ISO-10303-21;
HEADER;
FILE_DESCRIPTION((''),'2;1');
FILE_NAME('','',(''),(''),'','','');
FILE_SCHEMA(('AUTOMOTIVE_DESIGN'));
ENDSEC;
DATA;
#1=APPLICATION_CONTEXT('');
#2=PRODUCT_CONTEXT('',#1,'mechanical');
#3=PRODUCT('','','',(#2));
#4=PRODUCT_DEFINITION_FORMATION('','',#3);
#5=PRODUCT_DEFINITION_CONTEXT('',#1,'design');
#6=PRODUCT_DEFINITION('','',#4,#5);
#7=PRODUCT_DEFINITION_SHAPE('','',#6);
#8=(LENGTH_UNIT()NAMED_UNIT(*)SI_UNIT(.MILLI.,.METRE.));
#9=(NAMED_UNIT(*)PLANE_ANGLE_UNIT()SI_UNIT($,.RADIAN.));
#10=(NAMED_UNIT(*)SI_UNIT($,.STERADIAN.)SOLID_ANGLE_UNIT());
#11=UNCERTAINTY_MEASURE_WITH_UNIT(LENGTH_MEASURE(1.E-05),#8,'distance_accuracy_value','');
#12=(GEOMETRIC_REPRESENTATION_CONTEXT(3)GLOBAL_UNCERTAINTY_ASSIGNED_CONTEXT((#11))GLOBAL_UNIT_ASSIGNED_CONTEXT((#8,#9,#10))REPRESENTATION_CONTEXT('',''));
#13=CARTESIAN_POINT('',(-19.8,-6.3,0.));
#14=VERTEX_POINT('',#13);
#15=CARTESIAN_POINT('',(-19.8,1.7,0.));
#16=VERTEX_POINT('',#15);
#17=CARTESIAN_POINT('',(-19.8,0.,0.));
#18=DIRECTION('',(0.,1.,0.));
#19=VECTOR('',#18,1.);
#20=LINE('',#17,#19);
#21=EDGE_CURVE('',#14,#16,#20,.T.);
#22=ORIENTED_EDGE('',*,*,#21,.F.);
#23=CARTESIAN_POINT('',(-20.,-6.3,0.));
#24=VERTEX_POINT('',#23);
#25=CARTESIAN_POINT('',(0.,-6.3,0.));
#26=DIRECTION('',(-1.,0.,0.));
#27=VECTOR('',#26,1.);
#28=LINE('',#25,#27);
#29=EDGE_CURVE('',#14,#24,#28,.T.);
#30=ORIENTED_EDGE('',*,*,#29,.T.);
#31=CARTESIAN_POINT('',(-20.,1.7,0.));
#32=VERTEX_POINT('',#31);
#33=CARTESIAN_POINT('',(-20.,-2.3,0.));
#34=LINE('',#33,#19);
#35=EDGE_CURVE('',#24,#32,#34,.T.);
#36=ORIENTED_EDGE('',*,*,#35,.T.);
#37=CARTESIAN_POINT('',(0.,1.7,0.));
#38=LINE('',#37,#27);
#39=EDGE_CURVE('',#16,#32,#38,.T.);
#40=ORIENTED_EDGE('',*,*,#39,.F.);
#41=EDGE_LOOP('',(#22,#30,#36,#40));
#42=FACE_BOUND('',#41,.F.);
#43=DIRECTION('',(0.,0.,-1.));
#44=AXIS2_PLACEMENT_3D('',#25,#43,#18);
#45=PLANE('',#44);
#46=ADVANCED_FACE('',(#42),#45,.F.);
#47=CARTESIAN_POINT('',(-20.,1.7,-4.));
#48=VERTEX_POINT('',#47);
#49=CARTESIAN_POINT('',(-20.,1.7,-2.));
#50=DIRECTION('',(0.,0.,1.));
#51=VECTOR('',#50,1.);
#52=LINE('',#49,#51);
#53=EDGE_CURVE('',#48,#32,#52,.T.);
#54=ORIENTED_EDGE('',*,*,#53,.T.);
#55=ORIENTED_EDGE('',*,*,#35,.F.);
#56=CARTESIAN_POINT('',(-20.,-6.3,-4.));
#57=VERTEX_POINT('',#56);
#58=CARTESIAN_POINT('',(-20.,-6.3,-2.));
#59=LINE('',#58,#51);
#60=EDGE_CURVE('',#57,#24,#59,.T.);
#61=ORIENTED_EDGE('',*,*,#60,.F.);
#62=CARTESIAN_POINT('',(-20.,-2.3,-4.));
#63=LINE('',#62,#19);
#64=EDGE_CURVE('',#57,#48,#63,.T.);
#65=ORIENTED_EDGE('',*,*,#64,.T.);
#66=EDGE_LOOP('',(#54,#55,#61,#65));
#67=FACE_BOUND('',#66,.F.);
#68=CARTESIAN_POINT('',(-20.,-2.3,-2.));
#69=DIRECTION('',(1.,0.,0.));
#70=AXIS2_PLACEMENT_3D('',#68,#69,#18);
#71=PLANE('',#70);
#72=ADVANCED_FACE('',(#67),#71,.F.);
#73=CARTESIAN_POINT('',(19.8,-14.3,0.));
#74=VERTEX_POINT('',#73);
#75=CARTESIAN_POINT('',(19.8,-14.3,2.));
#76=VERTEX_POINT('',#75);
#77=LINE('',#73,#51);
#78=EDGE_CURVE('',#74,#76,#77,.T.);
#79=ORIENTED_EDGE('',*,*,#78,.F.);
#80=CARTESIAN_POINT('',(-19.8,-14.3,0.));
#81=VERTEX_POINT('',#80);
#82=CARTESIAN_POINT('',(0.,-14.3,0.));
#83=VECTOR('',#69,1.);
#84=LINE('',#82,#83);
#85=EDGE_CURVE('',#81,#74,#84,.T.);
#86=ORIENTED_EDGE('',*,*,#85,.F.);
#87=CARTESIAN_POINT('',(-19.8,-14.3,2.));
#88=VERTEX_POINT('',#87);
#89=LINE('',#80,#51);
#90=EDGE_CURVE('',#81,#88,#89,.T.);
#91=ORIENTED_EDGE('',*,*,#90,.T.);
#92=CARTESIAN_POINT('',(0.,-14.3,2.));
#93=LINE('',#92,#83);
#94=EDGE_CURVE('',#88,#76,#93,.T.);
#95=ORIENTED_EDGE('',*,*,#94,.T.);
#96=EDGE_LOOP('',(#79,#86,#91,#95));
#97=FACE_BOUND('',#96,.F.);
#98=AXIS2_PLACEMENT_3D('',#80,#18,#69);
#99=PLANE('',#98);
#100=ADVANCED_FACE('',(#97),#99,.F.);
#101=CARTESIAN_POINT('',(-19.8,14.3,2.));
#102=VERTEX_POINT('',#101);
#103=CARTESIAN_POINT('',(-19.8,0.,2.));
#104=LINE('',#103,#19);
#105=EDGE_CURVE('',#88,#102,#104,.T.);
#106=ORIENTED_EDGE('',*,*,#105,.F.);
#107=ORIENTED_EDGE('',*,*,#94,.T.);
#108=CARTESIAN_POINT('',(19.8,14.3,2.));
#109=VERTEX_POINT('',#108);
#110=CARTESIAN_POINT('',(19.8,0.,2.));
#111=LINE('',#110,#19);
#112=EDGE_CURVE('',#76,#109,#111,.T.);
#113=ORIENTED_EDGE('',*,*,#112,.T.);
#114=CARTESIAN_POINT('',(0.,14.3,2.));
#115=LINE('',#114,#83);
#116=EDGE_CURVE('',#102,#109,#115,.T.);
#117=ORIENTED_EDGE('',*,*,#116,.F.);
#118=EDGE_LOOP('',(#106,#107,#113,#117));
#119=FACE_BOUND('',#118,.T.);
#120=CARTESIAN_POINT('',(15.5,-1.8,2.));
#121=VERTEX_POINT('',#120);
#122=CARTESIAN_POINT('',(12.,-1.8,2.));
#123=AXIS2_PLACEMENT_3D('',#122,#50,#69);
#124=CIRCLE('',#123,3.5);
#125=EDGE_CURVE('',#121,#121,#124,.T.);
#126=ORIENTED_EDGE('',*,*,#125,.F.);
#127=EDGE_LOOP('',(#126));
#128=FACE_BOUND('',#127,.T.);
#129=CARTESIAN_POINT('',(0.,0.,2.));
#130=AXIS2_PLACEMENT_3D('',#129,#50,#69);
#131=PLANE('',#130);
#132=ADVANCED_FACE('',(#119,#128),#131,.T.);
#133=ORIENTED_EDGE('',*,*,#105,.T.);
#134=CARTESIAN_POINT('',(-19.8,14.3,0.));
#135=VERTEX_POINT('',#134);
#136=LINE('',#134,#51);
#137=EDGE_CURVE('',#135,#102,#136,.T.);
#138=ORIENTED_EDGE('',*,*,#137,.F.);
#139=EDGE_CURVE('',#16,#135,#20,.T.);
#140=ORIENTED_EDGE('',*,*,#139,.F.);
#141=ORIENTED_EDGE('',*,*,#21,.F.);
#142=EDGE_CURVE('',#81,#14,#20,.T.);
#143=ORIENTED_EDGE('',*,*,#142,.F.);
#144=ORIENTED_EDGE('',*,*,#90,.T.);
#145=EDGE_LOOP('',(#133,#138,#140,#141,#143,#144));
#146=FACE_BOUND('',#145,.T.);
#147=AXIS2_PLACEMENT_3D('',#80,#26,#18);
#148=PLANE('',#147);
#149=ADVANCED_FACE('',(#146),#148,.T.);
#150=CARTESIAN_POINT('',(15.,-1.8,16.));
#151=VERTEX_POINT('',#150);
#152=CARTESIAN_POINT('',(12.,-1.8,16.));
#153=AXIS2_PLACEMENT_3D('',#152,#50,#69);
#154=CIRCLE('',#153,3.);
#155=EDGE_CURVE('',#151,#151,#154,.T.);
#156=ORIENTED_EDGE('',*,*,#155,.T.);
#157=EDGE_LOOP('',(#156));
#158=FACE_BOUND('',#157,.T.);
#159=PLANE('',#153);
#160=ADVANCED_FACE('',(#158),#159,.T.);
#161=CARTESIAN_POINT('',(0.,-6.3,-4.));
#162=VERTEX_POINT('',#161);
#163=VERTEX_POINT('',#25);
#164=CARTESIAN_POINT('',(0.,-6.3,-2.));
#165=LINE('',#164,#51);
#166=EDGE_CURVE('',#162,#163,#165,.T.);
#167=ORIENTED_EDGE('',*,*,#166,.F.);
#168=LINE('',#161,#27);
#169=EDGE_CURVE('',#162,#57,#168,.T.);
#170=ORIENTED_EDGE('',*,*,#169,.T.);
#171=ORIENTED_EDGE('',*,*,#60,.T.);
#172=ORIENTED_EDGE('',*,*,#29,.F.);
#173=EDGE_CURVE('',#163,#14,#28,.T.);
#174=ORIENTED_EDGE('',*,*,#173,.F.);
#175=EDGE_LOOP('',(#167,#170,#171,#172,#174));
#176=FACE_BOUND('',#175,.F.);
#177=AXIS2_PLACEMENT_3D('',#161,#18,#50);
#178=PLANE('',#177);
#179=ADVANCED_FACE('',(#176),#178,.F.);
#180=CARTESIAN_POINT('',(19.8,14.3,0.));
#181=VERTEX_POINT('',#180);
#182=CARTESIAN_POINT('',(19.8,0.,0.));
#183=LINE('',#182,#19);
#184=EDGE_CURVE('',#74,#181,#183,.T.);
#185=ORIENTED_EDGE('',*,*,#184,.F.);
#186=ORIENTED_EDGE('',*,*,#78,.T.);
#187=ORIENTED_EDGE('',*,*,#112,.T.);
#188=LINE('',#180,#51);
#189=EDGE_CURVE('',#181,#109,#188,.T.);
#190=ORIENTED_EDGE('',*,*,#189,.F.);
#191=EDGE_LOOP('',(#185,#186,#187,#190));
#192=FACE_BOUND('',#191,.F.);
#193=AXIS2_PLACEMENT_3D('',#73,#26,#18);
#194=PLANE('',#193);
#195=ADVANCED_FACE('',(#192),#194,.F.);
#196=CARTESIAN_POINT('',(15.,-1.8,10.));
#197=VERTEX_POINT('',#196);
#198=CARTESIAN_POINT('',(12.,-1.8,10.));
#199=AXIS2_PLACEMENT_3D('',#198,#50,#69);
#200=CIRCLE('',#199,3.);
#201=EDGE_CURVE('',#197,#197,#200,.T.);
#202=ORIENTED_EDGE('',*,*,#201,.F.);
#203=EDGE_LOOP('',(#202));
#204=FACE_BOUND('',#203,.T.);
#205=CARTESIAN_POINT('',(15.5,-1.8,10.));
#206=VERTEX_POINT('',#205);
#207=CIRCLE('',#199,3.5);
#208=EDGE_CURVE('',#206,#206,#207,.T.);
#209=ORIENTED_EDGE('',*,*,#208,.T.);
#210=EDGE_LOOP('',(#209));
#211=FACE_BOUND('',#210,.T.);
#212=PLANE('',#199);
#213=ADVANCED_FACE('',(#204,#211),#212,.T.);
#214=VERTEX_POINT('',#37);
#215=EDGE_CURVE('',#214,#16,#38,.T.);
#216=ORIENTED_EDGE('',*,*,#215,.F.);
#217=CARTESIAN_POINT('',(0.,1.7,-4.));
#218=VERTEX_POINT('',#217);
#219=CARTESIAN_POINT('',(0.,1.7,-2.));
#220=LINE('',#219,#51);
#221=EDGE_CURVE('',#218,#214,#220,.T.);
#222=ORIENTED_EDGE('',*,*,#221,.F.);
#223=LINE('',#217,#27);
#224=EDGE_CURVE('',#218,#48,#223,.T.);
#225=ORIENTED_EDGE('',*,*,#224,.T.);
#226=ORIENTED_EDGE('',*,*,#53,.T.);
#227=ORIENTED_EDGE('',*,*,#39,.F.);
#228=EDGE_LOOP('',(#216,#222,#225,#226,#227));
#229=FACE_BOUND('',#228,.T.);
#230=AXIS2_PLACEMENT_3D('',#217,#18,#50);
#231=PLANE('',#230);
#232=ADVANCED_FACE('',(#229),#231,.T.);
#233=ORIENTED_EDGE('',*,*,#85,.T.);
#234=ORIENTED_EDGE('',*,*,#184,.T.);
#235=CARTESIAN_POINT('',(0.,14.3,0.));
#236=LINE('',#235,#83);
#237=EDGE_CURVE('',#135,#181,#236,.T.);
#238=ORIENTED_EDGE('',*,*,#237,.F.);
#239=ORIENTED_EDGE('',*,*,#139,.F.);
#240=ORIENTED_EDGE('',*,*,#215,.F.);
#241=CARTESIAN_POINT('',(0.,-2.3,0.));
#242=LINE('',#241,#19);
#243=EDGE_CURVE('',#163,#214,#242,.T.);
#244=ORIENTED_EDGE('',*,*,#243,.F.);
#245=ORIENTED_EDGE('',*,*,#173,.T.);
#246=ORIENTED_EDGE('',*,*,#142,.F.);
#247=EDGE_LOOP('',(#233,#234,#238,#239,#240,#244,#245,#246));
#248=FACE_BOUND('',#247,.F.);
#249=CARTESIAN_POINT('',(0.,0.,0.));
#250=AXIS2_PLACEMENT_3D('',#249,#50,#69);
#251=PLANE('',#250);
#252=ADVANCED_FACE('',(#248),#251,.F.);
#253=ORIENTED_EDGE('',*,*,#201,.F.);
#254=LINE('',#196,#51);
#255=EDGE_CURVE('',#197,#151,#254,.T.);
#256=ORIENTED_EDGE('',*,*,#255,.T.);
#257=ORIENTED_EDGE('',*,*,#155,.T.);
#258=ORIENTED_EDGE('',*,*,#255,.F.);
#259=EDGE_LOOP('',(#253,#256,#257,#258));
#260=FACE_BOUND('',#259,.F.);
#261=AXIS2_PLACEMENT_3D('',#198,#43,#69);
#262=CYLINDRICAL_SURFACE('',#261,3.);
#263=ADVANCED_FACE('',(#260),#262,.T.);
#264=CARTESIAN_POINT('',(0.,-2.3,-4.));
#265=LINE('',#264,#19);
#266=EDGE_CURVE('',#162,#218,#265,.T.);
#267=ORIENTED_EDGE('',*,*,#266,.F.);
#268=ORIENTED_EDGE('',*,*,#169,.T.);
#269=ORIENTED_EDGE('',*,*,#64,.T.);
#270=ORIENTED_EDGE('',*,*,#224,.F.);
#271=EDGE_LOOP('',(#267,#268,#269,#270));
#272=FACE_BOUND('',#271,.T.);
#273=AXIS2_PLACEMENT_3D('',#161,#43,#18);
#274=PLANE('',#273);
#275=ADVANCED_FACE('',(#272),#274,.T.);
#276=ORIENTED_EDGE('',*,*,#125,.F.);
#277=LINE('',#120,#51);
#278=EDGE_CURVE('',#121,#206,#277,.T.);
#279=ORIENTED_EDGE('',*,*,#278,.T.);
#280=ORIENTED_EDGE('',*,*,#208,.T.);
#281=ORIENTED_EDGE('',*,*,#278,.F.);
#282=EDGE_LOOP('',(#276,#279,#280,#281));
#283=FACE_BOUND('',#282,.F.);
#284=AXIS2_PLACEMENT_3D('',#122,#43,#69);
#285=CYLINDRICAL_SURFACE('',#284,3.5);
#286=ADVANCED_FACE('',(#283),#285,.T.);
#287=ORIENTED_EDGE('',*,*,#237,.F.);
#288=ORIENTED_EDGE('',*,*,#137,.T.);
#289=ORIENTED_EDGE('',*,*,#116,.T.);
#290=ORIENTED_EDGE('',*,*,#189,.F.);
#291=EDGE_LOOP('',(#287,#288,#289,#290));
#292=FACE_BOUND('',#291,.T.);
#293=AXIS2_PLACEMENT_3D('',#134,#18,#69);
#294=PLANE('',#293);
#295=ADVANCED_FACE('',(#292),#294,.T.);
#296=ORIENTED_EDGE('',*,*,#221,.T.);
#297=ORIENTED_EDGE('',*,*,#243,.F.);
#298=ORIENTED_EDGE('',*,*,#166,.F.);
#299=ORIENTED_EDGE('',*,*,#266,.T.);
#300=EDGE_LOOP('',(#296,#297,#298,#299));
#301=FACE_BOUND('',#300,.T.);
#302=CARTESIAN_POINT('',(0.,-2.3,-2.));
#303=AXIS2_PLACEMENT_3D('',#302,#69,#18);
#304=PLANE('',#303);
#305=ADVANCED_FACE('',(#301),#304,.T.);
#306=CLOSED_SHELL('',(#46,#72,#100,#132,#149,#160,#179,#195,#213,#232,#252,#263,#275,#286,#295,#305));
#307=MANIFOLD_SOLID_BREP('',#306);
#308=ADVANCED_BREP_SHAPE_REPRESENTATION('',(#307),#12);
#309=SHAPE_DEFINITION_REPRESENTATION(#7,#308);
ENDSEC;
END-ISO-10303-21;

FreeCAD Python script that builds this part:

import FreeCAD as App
import Part
import Sketcher

V = App.Vector

doc = App.newDocument("Part")
body = doc.addObject("PartDesign::Body", "Body")

sketch1 = body.newObject("Sketcher::SketchObject", "Sketch")
sketch1.AttachmentSupport = (doc.getObject("XY_Plane"), [""])
sketch1.MapMode = "FlatFace"
sketch1.addGeometry(Part.LineSegment(V(-20, 14, 0), V(-20, -14, 0)), False)
sketch1.addGeometry(Part.LineSegment(V(-20, -14, 0), V(20, -14, 0)), False)
sketch1.addGeometry(Part.LineSegment(V(20, -14, 0), V(20, 14, 0)), False)
sketch1.addGeometry(Part.LineSegment(V(20, 14, 0), V(-20, 14, 0)), False)
sketch1.addConstraint(Sketcher.Constraint("Coincident", 0, 2, 1, 1))
sketch1.addConstraint(Sketcher.Constraint("Coincident", 1, 2, 2, 1))
sketch1.addConstraint(Sketcher.Constraint("Coincident", 2, 2, 3, 1))
sketch1.addConstraint(Sketcher.Constraint("Coincident", 3, 2, 0, 1))
sketch1.addConstraint(Sketcher.Constraint("Vertical", 0))
sketch1.addConstraint(Sketcher.Constraint("Horizontal", 1))
sketch1.addConstraint(Sketcher.Constraint("Vertical", 2))
sketch1.addConstraint(Sketcher.Constraint("Horizontal", 3))
sketch1.addConstraint(Sketcher.Constraint("Symmetric", 0, 2, 2, 2, -1, 1))
sketch1.addConstraint(Sketcher.Constraint("DistanceX", 1, 1, 1, 2, 39.6))
sketch1.addConstraint(Sketcher.Constraint("DistanceY", 0, 2, 0, 1, 28.6))
pad1 = body.newObject("PartDesign::Pad", "Pad")
pad1.Profile = sketch1
pad1.Length = 2

sketch2 = body.newObject("Sketcher::SketchObject", "Sketch001")
sketch2.AttachmentSupport = (doc.getObject("YZ_Plane"), [""])
sketch2.MapMode = "FlatFace"
sketch2.addGeometry(Part.LineSegment(V(-6.3, 0, 0), V(-6.3, -4, 0)), False)
sketch2.addGeometry(Part.LineSegment(V(-6.3, -4, 0), V(1.7, -4, 0)), False)
sketch2.addGeometry(Part.LineSegment(V(1.7, -4, 0), V(1.7, 0, 0)), False)
sketch2.addGeometry(Part.LineSegment(V(1.7, 0, 0), V(-6.3, 0, 0)), False)
sketch2.addConstraint(Sketcher.Constraint("Coincident", 0, 2, 1, 1))
sketch2.addConstraint(Sketcher.Constraint("Coincident", 1, 2, 2, 1))
sketch2.addConstraint(Sketcher.Constraint("Coincident", 2, 2, 3, 1))
sketch2.addConstraint(Sketcher.Constraint("Coincident", 3, 2, 0, 1))
sketch2.addConstraint(Sketcher.Constraint("Vertical", 0))
sketch2.addConstraint(Sketcher.Constraint("Horizontal", 1))
sketch2.addConstraint(Sketcher.Constraint("Vertical", 2))
sketch2.addConstraint(Sketcher.Constraint("Horizontal", 3))
sketch2.addConstraint(Sketcher.Constraint("PointOnObject", 2, 2, -1))
sketch2.addConstraint(Sketcher.Constraint("DistanceX", 1, 1, 1, 2, 8.0))
sketch2.addConstraint(Sketcher.Constraint("DistanceY", 0, 2, 0, 1, 4.0))
sketch2.addConstraint(Sketcher.Constraint("DistanceX", 0, 2, -1, 1, 6.3))
pad2 = body.newObject("PartDesign::Pad", "Pad001")
pad2.Profile = sketch2
pad2.Length = 20
pad2.Reversed = True

sketch3 = body.newObject("Sketcher::SketchObject", "Sketch002")
sketch3.AttachmentSupport = (doc.getObject("XY_Plane"), [""])
sketch3.MapMode = "FlatFace"
sketch3.AttachmentOffset = App.Placement(V(0, 0, 2), App.Rotation())
sketch3.addGeometry(Part.Circle(V(12, -1.8, 0), V(0, 0, 1), 3.5), False)
sketch3.addConstraint(Sketcher.Constraint("Diameter", 0, 7.0))
sketch3.addConstraint(Sketcher.Constraint("DistanceX", -1, 1, 0, 3, 12.0))
sketch3.addConstraint(Sketcher.Constraint("DistanceY", 0, 3, -1, 1, 1.8))
pad3 = body.newObject("PartDesign::Pad", "Pad002")
pad3.Profile = sketch3
pad3.Length = 8

sketch4 = body.newObject("Sketcher::SketchObject", "Sketch003")
sketch4.AttachmentSupport = (doc.getObject("XY_Plane"), [""])
sketch4.MapMode = "FlatFace"
sketch4.AttachmentOffset = App.Placement(V(0, 0, 10), App.Rotation())
sketch4.addGeometry(Part.Circle(V(12, -1.8, 0), V(0, 0, 1), 3), False)
sketch4.addConstraint(Sketcher.Constraint("Diameter", 0, 6.0))
sketch4.addConstraint(Sketcher.Constraint("DistanceX", -1, 1, 0, 3, 12.0))
sketch4.addConstraint(Sketcher.Constraint("DistanceY", 0, 3, -1, 1, 1.8))
pad4 = body.newObject("PartDesign::Pad", "Pad003")
pad4.Profile = sketch4
pad4.Length = 6

doc.recompute()
